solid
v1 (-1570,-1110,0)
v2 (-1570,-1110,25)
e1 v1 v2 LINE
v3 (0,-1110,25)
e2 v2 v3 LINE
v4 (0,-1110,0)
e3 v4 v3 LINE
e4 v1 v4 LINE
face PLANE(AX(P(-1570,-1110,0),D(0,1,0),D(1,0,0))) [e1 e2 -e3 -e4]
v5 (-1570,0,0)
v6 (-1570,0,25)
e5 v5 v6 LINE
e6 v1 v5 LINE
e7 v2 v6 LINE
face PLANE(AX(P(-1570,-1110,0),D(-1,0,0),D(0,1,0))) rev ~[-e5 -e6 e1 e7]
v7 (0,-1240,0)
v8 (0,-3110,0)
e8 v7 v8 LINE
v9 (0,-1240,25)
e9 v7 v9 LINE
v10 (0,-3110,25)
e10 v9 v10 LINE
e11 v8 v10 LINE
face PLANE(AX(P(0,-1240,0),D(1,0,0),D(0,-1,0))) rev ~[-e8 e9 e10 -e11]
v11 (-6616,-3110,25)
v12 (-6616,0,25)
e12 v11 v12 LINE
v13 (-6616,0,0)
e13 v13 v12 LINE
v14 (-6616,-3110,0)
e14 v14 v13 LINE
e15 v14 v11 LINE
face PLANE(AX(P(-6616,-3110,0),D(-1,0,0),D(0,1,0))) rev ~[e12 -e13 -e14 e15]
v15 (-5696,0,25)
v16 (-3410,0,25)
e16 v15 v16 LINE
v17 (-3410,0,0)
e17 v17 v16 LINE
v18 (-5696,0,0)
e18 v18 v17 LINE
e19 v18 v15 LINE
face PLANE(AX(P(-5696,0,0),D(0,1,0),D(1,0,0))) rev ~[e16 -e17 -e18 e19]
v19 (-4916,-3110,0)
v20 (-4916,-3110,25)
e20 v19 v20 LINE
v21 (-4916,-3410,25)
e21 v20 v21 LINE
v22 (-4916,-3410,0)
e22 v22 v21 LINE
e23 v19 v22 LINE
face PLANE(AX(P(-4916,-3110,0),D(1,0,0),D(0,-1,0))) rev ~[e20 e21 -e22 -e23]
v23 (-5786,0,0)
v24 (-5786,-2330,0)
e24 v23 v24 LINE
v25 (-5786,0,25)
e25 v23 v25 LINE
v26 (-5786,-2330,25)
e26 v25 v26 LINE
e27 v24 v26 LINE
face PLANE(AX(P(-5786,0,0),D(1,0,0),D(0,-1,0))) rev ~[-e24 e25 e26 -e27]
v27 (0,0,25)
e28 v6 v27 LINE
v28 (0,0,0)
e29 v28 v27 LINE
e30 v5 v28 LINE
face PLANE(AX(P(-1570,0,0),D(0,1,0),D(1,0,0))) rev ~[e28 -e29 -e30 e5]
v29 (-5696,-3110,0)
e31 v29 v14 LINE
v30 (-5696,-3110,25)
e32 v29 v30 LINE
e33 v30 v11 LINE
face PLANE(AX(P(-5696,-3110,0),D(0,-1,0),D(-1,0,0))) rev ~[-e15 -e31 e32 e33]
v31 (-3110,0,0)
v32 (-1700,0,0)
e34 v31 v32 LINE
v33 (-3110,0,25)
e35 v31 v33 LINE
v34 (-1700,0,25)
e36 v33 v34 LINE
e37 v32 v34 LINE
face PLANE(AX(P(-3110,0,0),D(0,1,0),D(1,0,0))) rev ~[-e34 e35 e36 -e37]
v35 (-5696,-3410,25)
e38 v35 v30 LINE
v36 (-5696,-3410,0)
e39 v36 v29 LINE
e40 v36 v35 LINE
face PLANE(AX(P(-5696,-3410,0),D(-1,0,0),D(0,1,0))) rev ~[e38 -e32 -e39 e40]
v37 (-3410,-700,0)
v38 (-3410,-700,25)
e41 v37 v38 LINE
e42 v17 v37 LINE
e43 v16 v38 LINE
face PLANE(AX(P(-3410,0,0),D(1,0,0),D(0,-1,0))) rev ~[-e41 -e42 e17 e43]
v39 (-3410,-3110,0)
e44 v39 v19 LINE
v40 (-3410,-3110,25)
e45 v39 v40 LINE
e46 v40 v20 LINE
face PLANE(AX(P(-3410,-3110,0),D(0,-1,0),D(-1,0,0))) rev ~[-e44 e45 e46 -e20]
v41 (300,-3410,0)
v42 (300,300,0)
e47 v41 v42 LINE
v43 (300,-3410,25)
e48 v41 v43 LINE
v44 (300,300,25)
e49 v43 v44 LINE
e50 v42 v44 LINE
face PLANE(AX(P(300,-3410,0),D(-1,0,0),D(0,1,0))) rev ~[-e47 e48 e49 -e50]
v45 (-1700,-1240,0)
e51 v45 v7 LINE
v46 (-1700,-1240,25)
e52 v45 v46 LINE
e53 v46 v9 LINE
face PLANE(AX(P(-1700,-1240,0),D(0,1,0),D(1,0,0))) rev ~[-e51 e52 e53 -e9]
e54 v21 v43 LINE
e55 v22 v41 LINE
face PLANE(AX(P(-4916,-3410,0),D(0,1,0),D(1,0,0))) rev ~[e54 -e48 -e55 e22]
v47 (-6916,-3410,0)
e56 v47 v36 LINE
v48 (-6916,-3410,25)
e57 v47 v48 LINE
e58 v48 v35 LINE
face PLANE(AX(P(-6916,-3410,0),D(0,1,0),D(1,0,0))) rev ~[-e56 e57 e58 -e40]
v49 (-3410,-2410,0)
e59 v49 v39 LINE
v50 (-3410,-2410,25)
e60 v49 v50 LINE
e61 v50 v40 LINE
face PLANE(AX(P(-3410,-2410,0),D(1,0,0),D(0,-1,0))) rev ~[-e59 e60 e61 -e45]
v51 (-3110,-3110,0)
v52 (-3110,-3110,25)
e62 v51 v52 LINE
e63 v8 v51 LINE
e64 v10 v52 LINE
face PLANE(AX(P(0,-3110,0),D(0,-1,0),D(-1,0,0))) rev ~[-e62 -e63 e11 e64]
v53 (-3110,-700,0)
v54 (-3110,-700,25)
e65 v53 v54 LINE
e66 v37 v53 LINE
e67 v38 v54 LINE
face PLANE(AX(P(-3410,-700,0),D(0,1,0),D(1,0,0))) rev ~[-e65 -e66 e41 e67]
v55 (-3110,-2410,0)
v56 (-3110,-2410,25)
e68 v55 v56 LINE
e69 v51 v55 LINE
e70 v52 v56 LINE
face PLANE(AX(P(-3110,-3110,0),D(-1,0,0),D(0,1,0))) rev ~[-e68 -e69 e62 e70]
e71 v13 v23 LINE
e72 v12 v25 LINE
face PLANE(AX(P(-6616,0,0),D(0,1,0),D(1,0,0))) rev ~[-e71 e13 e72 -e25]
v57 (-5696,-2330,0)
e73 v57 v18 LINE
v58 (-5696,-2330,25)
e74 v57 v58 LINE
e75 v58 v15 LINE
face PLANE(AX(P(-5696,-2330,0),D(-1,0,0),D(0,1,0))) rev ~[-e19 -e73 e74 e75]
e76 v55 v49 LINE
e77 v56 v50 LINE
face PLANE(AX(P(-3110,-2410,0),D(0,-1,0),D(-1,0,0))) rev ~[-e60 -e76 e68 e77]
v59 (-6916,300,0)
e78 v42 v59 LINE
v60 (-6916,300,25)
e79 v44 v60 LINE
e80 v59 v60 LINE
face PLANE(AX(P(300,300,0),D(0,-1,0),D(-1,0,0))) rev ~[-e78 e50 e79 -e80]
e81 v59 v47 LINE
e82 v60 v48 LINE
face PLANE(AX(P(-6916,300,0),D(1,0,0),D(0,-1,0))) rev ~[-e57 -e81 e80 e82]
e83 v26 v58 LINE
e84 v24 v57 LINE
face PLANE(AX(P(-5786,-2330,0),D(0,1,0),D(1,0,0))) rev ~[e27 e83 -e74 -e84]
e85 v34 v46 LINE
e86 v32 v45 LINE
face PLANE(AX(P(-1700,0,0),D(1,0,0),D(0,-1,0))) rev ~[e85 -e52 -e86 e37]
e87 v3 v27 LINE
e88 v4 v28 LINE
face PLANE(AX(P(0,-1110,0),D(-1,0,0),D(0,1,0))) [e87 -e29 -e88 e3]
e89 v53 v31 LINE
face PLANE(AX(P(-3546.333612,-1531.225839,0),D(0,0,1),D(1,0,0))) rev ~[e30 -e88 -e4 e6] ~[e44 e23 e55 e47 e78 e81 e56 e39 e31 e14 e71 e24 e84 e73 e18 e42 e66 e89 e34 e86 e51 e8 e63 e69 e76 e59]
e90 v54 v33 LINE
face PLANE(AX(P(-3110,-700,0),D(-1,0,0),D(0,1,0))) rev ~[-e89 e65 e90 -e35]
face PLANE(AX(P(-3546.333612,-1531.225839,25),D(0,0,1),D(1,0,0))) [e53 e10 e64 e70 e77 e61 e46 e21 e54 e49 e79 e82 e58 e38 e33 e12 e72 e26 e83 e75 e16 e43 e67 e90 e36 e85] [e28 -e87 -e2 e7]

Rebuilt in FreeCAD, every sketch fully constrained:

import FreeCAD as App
import Part
import Sketcher

V = App.Vector
Q = App.Units.Quantity

doc = App.newDocument("Part")
body = doc.addObject("PartDesign::Body", "Body")

# Sketch on XY plane
sketch1 = body.newObject("Sketcher::SketchObject", "Sketch")
sketch1.AttachmentSupport = (doc.getObject("XY_Plane"), [""])
sketch1.MapMode = "FlatFace"
sketch1.addGeometry([
    Part.LineSegment(V(0, -1240, 0), V(0, -3110, 0)),  # 0
    Part.LineSegment(V(0, -3110, 0), V(-3110, -3110, 0)),  # 1
    Part.LineSegment(V(-3110, -3110, 0), V(-3110, -2410, 0)),  # 2
    Part.LineSegment(V(-3110, -2410, 0), V(-3410, -2410, 0)),  # 3
    Part.LineSegment(V(-3410, -2410, 0), V(-3410, -3110, 0)),  # 4
    Part.LineSegment(V(-3410, -3110, 0), V(-4916, -3110, 0)),  # 5
    Part.LineSegment(V(-4916, -3110, 0), V(-4916, -3410, 0)),  # 6
    Part.LineSegment(V(-4916, -3410, 0), V(300, -3410, 0)),  # 7
    Part.LineSegment(V(300, -3410, 0), V(300, 300, 0)),  # 8
    Part.LineSegment(V(300, 300, 0), V(-6916, 300, 0)),  # 9
    Part.LineSegment(V(-6916, 300, 0), V(-6916, -3410, 0)),  # 10
    Part.LineSegment(V(-6916, -3410, 0), V(-5696, -3410, 0)),  # 11
    Part.LineSegment(V(-5696, -3410, 0), V(-5696, -3110, 0)),  # 12
    Part.LineSegment(V(-5696, -3110, 0), V(-6616, -3110, 0)),  # 13
    Part.LineSegment(V(-6616, -3110, 0), V(-6616, 0, 0)),  # 14
    Part.LineSegment(V(-6616, 0, 0), V(-5786, 0, 0)),  # 15
    Part.LineSegment(V(-5786, 0, 0), V(-5786, -2330, 0)),  # 16
    Part.LineSegment(V(-5786, -2330, 0), V(-5696, -2330, 0)),  # 17
    Part.LineSegment(V(-5696, -2330, 0), V(-5696, 0, 0)),  # 18
    Part.LineSegment(V(-5696, 0, 0), V(-3410, 0, 0)),  # 19
    Part.LineSegment(V(-3410, 0, 0), V(-3410, -700, 0)),  # 20
    Part.LineSegment(V(-3410, -700, 0), V(-3110, -700, 0)),  # 21
    Part.LineSegment(V(-3110, -700, 0), V(-3110, 0, 0)),  # 22
    Part.LineSegment(V(-3110, 0, 0), V(-1700, 0, 0)),  # 23
    Part.LineSegment(V(-1700, 0, 0), V(-1700, -1240, 0)),  # 24
    Part.LineSegment(V(-1700, -1240, 0), V(0, -1240, 0)),  # 25
    Part.LineSegment(V(0, -1110, 0), V(-1570, -1110, 0)),  # 26
    Part.LineSegment(V(-1570, -1110, 0), V(-1570, 0, 0)),  # 27
    Part.LineSegment(V(-1570, 0, 0), V(0, 0, 0)),  # 28
    Part.LineSegment(V(0, 0, 0), V(0, -1110, 0)),  # 29
], False)
sketch1.addConstraint([
    Sketcher.Constraint("Coincident", 0, 2, 1, 1),
    Sketcher.Constraint("Coincident", 1, 2, 2, 1),
    Sketcher.Constraint("Coincident", 2, 2, 3, 1),
    Sketcher.Constraint("Coincident", 3, 2, 4, 1),
    Sketcher.Constraint("Coincident", 4, 2, 5, 1),
    Sketcher.Constraint("Coincident", 5, 2, 6, 1),
    Sketcher.Constraint("Coincident", 6, 2, 7, 1),
    Sketcher.Constraint("Coincident", 7, 2, 8, 1),
    Sketcher.Constraint("Coincident", 8, 2, 9, 1),
    Sketcher.Constraint("Coincident", 9, 2, 10, 1),
    Sketcher.Constraint("Coincident", 10, 2, 11, 1),
    Sketcher.Constraint("Coincident", 11, 2, 12, 1),
    Sketcher.Constraint("Coincident", 12, 2, 13, 1),
    Sketcher.Constraint("Coincident", 13, 2, 14, 1),
    Sketcher.Constraint("Coincident", 14, 2, 15, 1),
    Sketcher.Constraint("Coincident", 15, 2, 16, 1),
    Sketcher.Constraint("Coincident", 16, 2, 17, 1),
    Sketcher.Constraint("Coincident", 17, 2, 18, 1),
    Sketcher.Constraint("Coincident", 18, 2, 19, 1),
    Sketcher.Constraint("Coincident", 19, 2, 20, 1),
    Sketcher.Constraint("Coincident", 20, 2, 21, 1),
    Sketcher.Constraint("Coincident", 21, 2, 22, 1),
    Sketcher.Constraint("Coincident", 22, 2, 23, 1),
    Sketcher.Constraint("Coincident", 23, 2, 24, 1),
    Sketcher.Constraint("Coincident", 24, 2, 25, 1),
    Sketcher.Constraint("Coincident", 25, 2, 0, 1),
    Sketcher.Constraint("Coincident", 26, 2, 27, 1),
    Sketcher.Constraint("Coincident", 27, 2, 28, 1),
    Sketcher.Constraint("Coincident", 28, 2, 29, 1),
    Sketcher.Constraint("Coincident", 29, 2, 26, 1),
    Sketcher.Constraint("Vertical", 0),
    Sketcher.Constraint("Horizontal", 1),
    Sketcher.Constraint("Vertical", 2),
    Sketcher.Constraint("Horizontal", 3),
    Sketcher.Constraint("Vertical", 4),
    Sketcher.Constraint("Horizontal", 5),
    Sketcher.Constraint("Vertical", 6),
    Sketcher.Constraint("Horizontal", 7),
    Sketcher.Constraint("Vertical", 8),
    Sketcher.Constraint("Horizontal", 9),
    Sketcher.Constraint("Vertical", 10),
    Sketcher.Constraint("Horizontal", 11),
    Sketcher.Constraint("Vertical", 12),
    Sketcher.Constraint("Horizontal", 13),
    Sketcher.Constraint("Vertical", 14),
    Sketcher.Constraint("Horizontal", 15),
    Sketcher.Constraint("Vertical", 16),
    Sketcher.Constraint("Horizontal", 17),
    Sketcher.Constraint("Vertical", 18),
    Sketcher.Constraint("Horizontal", 19),
    Sketcher.Constraint("Vertical", 20),
    Sketcher.Constraint("Horizontal", 21),
    Sketcher.Constraint("Vertical", 22),
    Sketcher.Constraint("Horizontal", 23),
    Sketcher.Constraint("Vertical", 24),
    Sketcher.Constraint("Horizontal", 25),
    Sketcher.Constraint("Horizontal", 26),
    Sketcher.Constraint("Vertical", 27),
    Sketcher.Constraint("Horizontal", 28),
    Sketcher.Constraint("Vertical", 29),
    Sketcher.Constraint("Coincident", 28, 2, -1, 1),
    Sketcher.Constraint("PointOnObject", 0, 2, -2),
    Sketcher.Constraint("PointOnObject", 14, 2, -1),
    Sketcher.Constraint("PointOnObject", 18, 2, -1),
    Sketcher.Constraint("PointOnObject", 22, 2, -1),
    Sketcher.Constraint("Horizontal", 1, 2, 4, 2),
    Sketcher.Constraint("Horizontal", 7, 2, 10, 2),
    Sketcher.Constraint("Horizontal", 5, 2, 12, 2),
    Sketcher.Constraint("Vertical", 12, 2, 17, 2),
    Sketcher.Constraint("Vertical", 4, 2, 19, 2),
    Sketcher.Constraint("Vertical", 2, 2, 21, 2),
    Sketcher.Constraint("Equal", 21, 6),
    Sketcher.Constraint("Equal", 1, 14),
    Sketcher.Constraint("Equal", 4, 20),
    Sketcher.Constraint("DistanceX", 1, 2, 1, 1, Q("3110 mm")),
    Sketcher.Constraint("DistanceX", 3, 2, 3, 1, Q("300 mm")),
    Sketcher.Constraint("DistanceX", 5, 2, 5, 1, Q("1506 mm")),
    Sketcher.Constraint("DistanceX", 7, 1, 7, 2, Q("5216 mm")),
    Sketcher.Constraint("DistanceX", 9, 2, 9, 1, Q("7216 mm")),
    Sketcher.Constraint("DistanceX", 11, 1, 11, 2, Q("1220 mm")),
    Sketcher.Constraint("DistanceX", 13, 2, 13, 1, Q("920 mm")),
    Sketcher.Constraint("DistanceX", 15, 1, 15, 2, Q("830 mm")),
    Sketcher.Constraint("DistanceX", 23, 1, 23, 2, Q("1410 mm")),
    Sketcher.Constraint("DistanceX", 26, 2, 26, 1, Q("1570 mm")),
    Sketcher.Constraint("DistanceY", 0, 2, 0, 1, Q("1870 mm")),
    Sketcher.Constraint("DistanceY", 2, 1, 2, 2, Q("700 mm")),
    Sketcher.Constraint("DistanceY", 8, 1, 8, 2, Q("3710 mm")),
    Sketcher.Constraint("DistanceY", 16, 2, 16, 1, Q("2330 mm")),
    Sketcher.Constraint("DistanceY", 27, 1, 27, 2, Q("1110 mm")),
])
pad1 = body.newObject("PartDesign::Pad", "Pad")
pad1.Profile = sketch1
pad1.Length = 25

doc.recompute()
